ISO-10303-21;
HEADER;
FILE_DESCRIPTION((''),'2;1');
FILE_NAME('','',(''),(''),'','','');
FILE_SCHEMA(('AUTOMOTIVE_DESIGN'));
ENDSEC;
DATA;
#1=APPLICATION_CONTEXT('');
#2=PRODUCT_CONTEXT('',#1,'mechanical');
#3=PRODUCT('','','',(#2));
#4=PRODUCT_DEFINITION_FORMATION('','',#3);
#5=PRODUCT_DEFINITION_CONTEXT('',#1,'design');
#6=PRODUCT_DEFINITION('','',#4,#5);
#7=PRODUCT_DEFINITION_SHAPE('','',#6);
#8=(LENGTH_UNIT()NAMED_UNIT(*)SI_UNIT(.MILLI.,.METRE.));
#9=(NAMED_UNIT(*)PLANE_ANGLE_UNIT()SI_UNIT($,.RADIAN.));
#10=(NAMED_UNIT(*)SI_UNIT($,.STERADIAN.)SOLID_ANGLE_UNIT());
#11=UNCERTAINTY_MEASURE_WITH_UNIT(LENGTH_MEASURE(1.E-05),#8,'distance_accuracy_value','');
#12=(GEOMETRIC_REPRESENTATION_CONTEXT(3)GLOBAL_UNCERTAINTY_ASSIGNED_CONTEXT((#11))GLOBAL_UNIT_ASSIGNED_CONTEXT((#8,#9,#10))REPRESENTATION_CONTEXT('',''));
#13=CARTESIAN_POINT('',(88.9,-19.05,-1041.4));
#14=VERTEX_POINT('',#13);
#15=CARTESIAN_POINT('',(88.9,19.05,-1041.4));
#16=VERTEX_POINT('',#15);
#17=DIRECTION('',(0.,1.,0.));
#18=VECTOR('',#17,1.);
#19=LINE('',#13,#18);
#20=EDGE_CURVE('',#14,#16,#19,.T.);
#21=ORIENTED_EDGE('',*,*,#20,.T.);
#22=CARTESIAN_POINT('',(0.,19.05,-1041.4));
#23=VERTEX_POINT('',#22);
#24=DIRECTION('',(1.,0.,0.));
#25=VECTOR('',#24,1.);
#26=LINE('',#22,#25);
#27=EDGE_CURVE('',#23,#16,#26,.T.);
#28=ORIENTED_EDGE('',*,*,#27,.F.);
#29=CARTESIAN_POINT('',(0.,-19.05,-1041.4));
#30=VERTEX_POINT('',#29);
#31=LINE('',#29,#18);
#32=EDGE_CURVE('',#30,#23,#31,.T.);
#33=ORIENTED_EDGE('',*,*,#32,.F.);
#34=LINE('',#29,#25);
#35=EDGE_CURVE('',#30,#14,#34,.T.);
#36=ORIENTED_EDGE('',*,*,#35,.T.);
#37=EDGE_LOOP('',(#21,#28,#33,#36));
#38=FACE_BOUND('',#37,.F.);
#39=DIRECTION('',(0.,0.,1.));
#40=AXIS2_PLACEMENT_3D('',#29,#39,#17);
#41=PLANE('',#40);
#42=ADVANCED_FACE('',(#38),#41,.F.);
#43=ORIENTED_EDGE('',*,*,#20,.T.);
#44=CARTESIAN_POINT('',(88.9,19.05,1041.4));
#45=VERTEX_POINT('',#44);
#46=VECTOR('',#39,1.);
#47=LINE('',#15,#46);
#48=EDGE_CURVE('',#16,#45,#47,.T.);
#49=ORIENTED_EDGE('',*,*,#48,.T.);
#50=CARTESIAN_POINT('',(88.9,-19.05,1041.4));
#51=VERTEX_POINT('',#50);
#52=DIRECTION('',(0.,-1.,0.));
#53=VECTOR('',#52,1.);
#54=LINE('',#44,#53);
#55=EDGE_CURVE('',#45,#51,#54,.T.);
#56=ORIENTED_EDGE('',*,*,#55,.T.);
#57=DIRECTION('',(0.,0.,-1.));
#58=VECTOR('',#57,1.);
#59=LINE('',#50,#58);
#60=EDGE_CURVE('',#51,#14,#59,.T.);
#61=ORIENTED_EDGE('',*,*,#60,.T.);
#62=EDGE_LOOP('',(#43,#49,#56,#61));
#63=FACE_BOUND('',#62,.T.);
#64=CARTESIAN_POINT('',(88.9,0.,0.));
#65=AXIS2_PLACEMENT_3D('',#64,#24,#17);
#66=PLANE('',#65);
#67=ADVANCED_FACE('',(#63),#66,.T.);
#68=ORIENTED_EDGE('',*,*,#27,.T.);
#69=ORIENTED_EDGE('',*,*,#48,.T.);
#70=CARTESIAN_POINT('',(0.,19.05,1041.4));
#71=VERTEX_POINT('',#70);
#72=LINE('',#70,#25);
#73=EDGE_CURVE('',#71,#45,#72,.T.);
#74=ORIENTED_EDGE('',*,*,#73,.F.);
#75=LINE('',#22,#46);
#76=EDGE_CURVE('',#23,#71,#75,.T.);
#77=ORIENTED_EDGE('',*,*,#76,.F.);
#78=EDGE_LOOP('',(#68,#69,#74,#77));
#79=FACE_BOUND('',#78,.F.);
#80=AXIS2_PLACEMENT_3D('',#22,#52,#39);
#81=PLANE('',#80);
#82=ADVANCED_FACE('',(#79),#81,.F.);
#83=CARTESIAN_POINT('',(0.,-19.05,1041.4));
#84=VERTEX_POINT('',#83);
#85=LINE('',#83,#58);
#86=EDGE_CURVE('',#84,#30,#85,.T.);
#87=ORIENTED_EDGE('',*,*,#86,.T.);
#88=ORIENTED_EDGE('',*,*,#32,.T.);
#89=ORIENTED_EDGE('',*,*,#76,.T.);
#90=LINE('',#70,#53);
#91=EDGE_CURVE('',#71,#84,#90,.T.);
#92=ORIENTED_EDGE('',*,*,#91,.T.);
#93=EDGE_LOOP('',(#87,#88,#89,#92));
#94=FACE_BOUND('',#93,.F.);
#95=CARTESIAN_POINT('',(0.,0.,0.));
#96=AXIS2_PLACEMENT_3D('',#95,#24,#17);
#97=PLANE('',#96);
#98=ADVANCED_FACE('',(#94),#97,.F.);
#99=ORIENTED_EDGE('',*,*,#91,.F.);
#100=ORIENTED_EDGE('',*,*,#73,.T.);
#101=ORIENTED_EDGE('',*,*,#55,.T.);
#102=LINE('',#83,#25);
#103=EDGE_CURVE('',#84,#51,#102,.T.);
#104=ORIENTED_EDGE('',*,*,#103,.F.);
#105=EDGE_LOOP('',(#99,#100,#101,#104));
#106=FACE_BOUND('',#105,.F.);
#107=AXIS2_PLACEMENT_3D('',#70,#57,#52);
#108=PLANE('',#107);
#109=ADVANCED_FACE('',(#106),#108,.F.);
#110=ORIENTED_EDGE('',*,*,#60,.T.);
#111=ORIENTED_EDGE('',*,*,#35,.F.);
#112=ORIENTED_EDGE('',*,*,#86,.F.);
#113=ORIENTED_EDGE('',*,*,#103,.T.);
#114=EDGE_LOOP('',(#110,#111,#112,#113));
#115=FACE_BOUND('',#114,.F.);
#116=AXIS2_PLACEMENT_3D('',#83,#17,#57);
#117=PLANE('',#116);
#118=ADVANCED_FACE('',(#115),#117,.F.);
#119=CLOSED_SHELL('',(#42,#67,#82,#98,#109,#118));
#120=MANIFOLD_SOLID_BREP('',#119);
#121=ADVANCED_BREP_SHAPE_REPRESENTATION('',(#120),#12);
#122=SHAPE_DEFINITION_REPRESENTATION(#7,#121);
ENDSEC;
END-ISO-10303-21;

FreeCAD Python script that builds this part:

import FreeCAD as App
import Part
import Sketcher
from FreeCAD import Vector
Q = App.Units.Quantity


def add_polygon(sketch, points):
    """Adds a closed chain of lines whose ends are joined by coincident constraints."""
    first, n = sketch.GeometryCount, len(points)
    for a, b in zip(points, points[1:] + points[:1]):
        sketch.addGeometry(Part.LineSegment(App.Vector(*a, 0), App.Vector(*b, 0)), False)
    for i in range(n):
        sketch.addConstraint(Sketcher.Constraint("Coincident", first + i, 2, first + (i + 1) % n, 1))

doc = App.newDocument("Part")
body = doc.addObject("PartDesign::Body", "Body")

# Sketch on YZ plane
sketch1 = body.newObject("Sketcher::SketchObject", "Sketch")
sketch1.AttachmentSupport = (doc.getObject("YZ_Plane"), [""])
sketch1.MapMode = "FlatFace"
add_polygon(sketch1, [(19, 1041), (-19, 1041), (-19, -1041), (19, -1041)])  # lines 0-3
sketch1.addConstraint(Sketcher.Constraint("Horizontal", 0))
sketch1.addConstraint(Sketcher.Constraint("Vertical", 1))
sketch1.addConstraint(Sketcher.Constraint("Horizontal", 2))
sketch1.addConstraint(Sketcher.Constraint("Vertical", 3))
sketch1.addConstraint(Sketcher.Constraint("Symmetric", 0, 2, 2, 2, -1, 1))
sketch1.addConstraint(Sketcher.Constraint("DistanceY", 1, 2, 1, 1, Q("82 in")))
sketch1.addConstraint(Sketcher.Constraint("DistanceX", 0, 2, 0, 1, Q("1.5 in")))
pad1 = body.newObject("PartDesign::Pad", "Pad")
pad1.Profile = sketch1
pad1.Length = Q("3.5 in")

doc.recompute()
